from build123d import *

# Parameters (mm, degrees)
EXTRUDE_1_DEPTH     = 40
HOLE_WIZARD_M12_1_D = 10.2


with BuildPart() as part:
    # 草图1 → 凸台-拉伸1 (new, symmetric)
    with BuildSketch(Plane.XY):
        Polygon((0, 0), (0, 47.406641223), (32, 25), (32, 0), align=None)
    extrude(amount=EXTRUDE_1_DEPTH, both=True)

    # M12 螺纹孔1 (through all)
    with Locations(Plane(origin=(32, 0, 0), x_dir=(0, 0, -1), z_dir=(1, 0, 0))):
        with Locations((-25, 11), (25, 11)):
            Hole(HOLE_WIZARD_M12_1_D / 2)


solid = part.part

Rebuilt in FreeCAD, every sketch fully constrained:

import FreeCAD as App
import Part
import Sketcher
from FreeCAD import Vector
Q = App.Units.Quantity


def add_polygon(sketch, points):
    """Adds a closed chain of lines whose ends are joined by coincident constraints."""
    first, n = sketch.GeometryCount, len(points)
    for a, b in zip(points, points[1:] + points[:1]):
        sketch.addGeometry(Part.LineSegment(App.Vector(*a, 0), App.Vector(*b, 0)), False)
    for i in range(n):
        sketch.addConstraint(Sketcher.Constraint("Coincident", first + i, 2, first + (i + 1) % n, 1))

doc = App.newDocument("Part")
params = doc.addObject("Spreadsheet::Sheet", "Params")
for row, (alias, value) in enumerate([
    ("sketch1_width", "32 mm"),
    ("sketch1_height", "25 mm"),
    ("pad1_length", "80 mm"),
    ("sketch2_diameter", "10.2 mm"),
    ("hole_diameter", "10.2 mm"),
], start=1):
    params.set(f"A{row}", alias)
    params.set(f"B{row}", "=" + value)
    params.setAlias(f"B{row}", alias)

body = doc.addObject("PartDesign::Body", "Body")

sketch1 = body.newObject("Sketcher::SketchObject", "Sketch")
sketch1.AttachmentSupport = (doc.getObject("XY_Plane"), [""])
sketch1.MapMode = "FlatFace"
add_polygon(sketch1, [(0, 47), (0, 0), (32, 0), (32, 25)])
sketch1.addConstraint(Sketcher.Constraint("Vertical", 0))
sketch1.addConstraint(Sketcher.Constraint("Horizontal", 1))
sketch1.addConstraint(Sketcher.Constraint("Vertical", 2))
sketch1.addConstraint(Sketcher.Constraint("Coincident", 0, 2, -1, 1))
sketch1.addConstraint(Sketcher.Constraint("DistanceX", 1, 1, 1, 2, 32.0))
sketch1.addConstraint(Sketcher.Constraint("DistanceY", 2, 1, 2, 2, 25.0))
sketch1.addConstraint(Sketcher.Constraint("Angle", 3, Q("145 deg")))
sketch1.setExpression("Constraints[8]", "Params.sketch1_width")
sketch1.setExpression("Constraints[9]", "Params.sketch1_height")
pad1 = body.newObject("PartDesign::Pad", "Pad")
pad1.Profile = sketch1
pad1.setExpression("Length", "Params.pad1_length")
pad1.Midplane = True

sketch2 = body.newObject("Sketcher::SketchObject", "Sketch001")
sketch2.AttachmentSupport = (doc.getObject("YZ_Plane"), [""])
sketch2.MapMode = "FlatFace"
sketch2.AttachmentOffset = App.Placement(Vector(0, 0, 32), App.Rotation())
sketch2.addGeometry(Part.Circle(Vector(11, 25, 0), Vector(0, 0, 1), 5), False)
sketch2.addGeometry(Part.Circle(Vector(11, -25, 0), Vector(0, 0, 1), 5), False)
sketch2.addConstraint(Sketcher.Constraint("Equal", 0, 1))
sketch2.addConstraint(Sketcher.Constraint("Symmetric", 0, 3, 1, 3, -1))
sketch2.addConstraint(Sketcher.Constraint("Diameter", 0, 10.2))
sketch2.addConstraint(Sketcher.Constraint("DistanceX", -1, 1, 0, 3, 11.0))
sketch2.addConstraint(Sketcher.Constraint("DistanceY", -1, 1, 0, 3, 25.0))
sketch2.setExpression("Constraints[2]", "Params.sketch2_diameter")
doc.recompute()
hole = body.newObject("PartDesign::Hole", "Hole")
hole.Profile = sketch2
hole.ThreadType = "None"
hole.setExpression("Diameter", "Params.hole_diameter")
hole.DepthType = "ThroughAll"

doc.recompute()
